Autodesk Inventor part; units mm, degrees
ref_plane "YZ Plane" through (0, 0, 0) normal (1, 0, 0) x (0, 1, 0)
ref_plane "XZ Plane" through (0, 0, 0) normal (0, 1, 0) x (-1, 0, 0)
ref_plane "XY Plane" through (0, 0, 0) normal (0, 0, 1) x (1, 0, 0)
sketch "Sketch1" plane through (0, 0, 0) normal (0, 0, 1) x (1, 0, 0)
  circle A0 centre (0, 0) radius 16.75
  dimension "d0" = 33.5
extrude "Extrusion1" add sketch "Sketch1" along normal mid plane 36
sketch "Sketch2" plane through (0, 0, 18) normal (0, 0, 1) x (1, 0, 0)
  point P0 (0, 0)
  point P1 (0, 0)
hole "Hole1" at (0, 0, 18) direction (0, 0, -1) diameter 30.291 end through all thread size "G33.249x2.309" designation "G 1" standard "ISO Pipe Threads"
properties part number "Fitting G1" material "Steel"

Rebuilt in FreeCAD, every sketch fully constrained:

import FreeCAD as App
import Part
import Sketcher
Q = App.Units.Quantity

doc = App.newDocument("Part")
body = doc.addObject("PartDesign::Body", "Body")

# Sketch on XY plane
sketch1 = doc.addObject("Sketcher::SketchObject", "Sketch")
body.addObject(sketch1)
sketch1.AttachmentSupport = (doc.XY_Plane, [""])
sketch1.MapMode = "FlatFace"
sketch1.addGeometry(Part.Circle(App.Vector(0, 0, 0), App.Vector(0, 0, 1), 17), False)
sketch1.addConstraint(Sketcher.Constraint("Coincident", 0, 3, -1, 1))
sketch1.addConstraint(Sketcher.Constraint("Diameter", 0, Q("33.5 mm")))
pad1 = doc.addObject("PartDesign::Pad", "Pad")
body.addObject(pad1)
pad1.Profile = sketch1
pad1.Length = 36
pad1.Midplane = True

# Sketch on XY plane
sketch2 = doc.addObject("Sketcher::SketchObject", "Sketch001")
body.addObject(sketch2)
sketch2.AttachmentSupport = (doc.XY_Plane, [""])
sketch2.MapMode = "FlatFace"
sketch2.AttachmentOffset = App.Placement(App.Vector(0, 0, 18), App.Rotation())
sketch2.addGeometry(Part.Circle(App.Vector(0, 0, 0), App.Vector(0, 0, 1), 15), False)
sketch2.addConstraint(Sketcher.Constraint("Coincident", 0, 3, -1, 1))
sketch2.addConstraint(Sketcher.Constraint("Diameter", 0, Q("30.291 mm")))
doc.recompute()
hole = doc.addObject("PartDesign::Hole", "Hole")
body.addObject(hole)
hole.Profile = sketch2
hole.ThreadType = "None"
hole.Diameter = 30.291
hole.DepthType = "ThroughAll"

doc.recompute()
